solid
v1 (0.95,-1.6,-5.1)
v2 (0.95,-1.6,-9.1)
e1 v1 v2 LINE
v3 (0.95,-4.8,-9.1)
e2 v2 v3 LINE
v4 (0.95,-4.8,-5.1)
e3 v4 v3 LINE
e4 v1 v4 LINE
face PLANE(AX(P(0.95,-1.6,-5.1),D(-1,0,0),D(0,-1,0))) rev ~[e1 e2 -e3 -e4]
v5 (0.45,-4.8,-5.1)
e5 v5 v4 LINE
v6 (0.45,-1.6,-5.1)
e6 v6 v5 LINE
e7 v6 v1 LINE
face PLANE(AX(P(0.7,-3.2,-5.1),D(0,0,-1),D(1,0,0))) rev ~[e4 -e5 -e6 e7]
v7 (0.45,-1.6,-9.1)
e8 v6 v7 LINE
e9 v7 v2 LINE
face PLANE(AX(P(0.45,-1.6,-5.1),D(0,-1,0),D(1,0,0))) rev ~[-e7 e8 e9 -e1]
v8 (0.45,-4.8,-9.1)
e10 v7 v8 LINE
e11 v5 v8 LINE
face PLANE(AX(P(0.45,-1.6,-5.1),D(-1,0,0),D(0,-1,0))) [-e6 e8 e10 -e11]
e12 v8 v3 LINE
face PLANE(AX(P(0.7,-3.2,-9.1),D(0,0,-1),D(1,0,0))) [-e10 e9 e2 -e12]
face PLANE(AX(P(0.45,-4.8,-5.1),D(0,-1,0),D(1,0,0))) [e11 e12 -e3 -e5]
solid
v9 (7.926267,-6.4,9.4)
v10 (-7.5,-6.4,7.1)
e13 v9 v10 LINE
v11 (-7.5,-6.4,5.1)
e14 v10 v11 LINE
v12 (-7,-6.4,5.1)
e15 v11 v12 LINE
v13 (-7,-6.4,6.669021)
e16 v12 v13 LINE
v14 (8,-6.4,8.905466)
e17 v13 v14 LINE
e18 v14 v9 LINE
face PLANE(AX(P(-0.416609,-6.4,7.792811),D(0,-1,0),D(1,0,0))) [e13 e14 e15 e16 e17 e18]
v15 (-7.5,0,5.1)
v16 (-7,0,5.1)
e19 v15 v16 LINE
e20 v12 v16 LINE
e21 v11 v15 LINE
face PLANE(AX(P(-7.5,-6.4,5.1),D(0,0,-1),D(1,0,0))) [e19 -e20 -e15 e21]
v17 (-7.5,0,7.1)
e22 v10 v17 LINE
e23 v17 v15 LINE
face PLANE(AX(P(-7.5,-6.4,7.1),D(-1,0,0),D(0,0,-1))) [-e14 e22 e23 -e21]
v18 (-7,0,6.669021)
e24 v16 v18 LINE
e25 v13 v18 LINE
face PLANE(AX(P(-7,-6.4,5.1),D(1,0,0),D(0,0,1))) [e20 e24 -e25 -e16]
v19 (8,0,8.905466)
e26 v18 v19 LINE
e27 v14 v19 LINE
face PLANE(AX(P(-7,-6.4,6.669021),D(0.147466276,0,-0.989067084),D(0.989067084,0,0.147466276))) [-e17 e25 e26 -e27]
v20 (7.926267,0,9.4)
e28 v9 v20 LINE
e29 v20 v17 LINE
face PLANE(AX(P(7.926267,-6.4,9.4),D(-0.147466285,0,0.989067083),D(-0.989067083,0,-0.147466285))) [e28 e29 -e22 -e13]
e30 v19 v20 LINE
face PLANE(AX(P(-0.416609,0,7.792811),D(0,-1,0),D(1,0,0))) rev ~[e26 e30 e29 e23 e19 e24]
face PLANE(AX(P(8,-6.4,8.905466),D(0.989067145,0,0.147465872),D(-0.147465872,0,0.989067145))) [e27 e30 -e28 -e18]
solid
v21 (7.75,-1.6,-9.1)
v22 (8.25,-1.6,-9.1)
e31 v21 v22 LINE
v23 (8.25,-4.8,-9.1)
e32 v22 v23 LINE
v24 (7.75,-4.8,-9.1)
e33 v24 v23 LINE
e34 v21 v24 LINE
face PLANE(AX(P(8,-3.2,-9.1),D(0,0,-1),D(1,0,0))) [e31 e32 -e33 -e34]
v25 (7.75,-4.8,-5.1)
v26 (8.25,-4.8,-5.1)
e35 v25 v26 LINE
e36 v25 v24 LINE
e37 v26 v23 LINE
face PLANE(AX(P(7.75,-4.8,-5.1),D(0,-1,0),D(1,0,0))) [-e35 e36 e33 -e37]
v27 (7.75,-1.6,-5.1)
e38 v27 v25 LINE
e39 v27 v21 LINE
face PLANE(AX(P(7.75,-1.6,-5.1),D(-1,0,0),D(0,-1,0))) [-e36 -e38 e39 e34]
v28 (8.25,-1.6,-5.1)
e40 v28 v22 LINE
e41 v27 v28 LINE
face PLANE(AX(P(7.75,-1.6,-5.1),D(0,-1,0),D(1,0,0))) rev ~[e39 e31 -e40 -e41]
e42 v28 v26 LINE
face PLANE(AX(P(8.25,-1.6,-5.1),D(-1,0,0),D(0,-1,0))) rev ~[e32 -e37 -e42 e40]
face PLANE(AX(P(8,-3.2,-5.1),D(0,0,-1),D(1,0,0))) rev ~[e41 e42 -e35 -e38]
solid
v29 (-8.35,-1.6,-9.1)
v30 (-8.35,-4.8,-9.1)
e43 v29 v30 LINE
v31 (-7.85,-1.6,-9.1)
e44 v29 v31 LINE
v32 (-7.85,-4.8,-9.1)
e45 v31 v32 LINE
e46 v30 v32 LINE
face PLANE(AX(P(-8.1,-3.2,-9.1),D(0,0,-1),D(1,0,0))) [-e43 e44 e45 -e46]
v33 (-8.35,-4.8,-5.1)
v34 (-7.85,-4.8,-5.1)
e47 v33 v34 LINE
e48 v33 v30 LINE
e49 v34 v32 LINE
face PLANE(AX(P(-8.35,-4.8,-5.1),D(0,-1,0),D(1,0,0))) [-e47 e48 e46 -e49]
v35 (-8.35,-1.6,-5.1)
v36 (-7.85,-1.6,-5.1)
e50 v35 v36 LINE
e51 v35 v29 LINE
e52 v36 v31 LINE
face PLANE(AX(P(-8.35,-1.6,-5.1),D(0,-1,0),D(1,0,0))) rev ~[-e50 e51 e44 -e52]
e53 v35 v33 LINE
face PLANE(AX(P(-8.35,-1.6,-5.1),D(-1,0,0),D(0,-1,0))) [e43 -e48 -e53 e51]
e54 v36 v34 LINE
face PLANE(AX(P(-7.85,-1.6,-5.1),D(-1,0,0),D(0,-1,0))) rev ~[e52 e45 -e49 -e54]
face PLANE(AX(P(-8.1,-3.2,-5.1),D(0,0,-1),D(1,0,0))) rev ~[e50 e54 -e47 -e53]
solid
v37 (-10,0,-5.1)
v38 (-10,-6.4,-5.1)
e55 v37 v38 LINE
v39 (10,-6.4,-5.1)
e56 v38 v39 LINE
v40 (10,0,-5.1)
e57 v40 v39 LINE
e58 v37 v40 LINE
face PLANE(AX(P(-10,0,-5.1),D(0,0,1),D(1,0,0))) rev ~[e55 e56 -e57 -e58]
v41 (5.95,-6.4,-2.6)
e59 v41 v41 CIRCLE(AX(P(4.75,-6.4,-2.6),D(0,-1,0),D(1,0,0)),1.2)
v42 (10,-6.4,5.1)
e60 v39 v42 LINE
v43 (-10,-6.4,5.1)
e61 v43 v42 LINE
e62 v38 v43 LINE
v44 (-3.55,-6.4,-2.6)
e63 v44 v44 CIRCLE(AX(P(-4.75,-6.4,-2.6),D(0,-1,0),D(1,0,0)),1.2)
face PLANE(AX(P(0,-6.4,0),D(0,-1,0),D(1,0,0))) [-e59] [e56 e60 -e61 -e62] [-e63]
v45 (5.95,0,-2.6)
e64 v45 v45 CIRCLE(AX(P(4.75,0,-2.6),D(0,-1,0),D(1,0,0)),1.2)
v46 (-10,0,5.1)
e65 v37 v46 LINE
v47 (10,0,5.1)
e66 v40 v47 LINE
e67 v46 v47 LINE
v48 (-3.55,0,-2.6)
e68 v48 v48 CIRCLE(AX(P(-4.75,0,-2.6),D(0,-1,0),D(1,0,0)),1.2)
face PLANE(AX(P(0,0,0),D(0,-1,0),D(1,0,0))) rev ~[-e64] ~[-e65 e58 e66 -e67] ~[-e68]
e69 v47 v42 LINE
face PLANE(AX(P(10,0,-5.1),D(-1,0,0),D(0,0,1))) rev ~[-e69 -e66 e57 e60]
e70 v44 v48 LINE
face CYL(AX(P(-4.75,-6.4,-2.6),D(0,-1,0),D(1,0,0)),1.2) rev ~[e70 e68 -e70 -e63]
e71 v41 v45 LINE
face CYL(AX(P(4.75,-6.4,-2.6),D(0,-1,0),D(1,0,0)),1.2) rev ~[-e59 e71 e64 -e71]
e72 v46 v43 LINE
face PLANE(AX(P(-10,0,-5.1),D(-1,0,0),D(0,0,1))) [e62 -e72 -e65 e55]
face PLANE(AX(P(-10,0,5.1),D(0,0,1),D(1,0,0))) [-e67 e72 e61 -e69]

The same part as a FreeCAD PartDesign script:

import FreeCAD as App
import Part
import Sketcher
Q = App.Units.Quantity

doc = App.newDocument("Part")
body = doc.addObject("PartDesign::Body", "Body")

# Sketch on XZ plane
sketch1 = doc.addObject("Sketcher::SketchObject", "Sketch")
body.addObject(sketch1)
sketch1.AttachmentSupport = (doc.XZ_Plane, [""])
sketch1.MapMode = "FlatFace"
sketch1.addGeometry([
    Part.LineSegment(App.Vector(-10, 5, 0), App.Vector(-10, -5, 0)),
    Part.LineSegment(App.Vector(-10, -5, 0), App.Vector(10, -5, 0)),
    Part.LineSegment(App.Vector(10, -5, 0), App.Vector(10, 5, 0)),
    Part.LineSegment(App.Vector(10, 5, 0), App.Vector(-10, 5, 0)),
], False)
sketch1.addConstraint([
    Sketcher.Constraint("Coincident", 0, 2, 1, 1),
    Sketcher.Constraint("Coincident", 1, 2, 2, 1),
    Sketcher.Constraint("Coincident", 2, 2, 3, 1),
    Sketcher.Constraint("Coincident", 3, 2, 0, 1),
    Sketcher.Constraint("Vertical", 0),
    Sketcher.Constraint("Horizontal", 1),
    Sketcher.Constraint("Vertical", 2),
    Sketcher.Constraint("Horizontal", 3),
    Sketcher.Constraint("Symmetric", 0, 2, 2, 2, -1, 1),
    Sketcher.Constraint("DistanceX", 1, 1, 1, 2, Q("20 mm")),
    Sketcher.Constraint("DistanceY", 0, 2, 0, 1, Q("10.2 mm")),
])
pad1 = doc.addObject("PartDesign::Pad", "Pad")
body.addObject(pad1)
pad1.Profile = sketch1
pad1.Length = 6.4

# Sketch on XZ plane
sketch2 = doc.addObject("Sketcher::SketchObject", "Sketch001")
body.addObject(sketch2)
sketch2.AttachmentSupport = (doc.XZ_Plane, [""])
sketch2.MapMode = "FlatFace"
sketch2.AttachmentOffset = App.Placement(App.Vector(0, 0, 6.4), App.Rotation())
sketch2.addGeometry([
    Part.Circle(App.Vector(-4.8, -2.6, 0), App.Vector(0, 0, 1), 1.2),
    Part.Circle(App.Vector(4.8, -2.6, 0), App.Vector(0, 0, 1), 1.2),
], False)
sketch2.addConstraint([
    Sketcher.Constraint("Equal", 0, 1),
    Sketcher.Constraint("Symmetric", 0, 3, 1, 3, -2),
    Sketcher.Constraint("Diameter", 0, Q("2.4 mm")),
    Sketcher.Constraint("DistanceY", 0, 3, -1, 1, Q("2.6 mm")),
    Sketcher.Constraint("DistanceX", 0, 3, 1, 3, Q("9.5 mm")),
])
pocket1 = doc.addObject("PartDesign::Pocket", "Pocket")
body.addObject(pocket1)
pocket1.Profile = sketch2
pocket1.Length = 25
body2 = doc.addObject("PartDesign::Body", "Body001")

# Sketch on XZ plane
sketch3 = doc.addObject("Sketcher::SketchObject", "Sketch002")
body2.addObject(sketch3)
sketch3.AttachmentSupport = (doc.getObject("XZ_Plane001"), [""])
sketch3.MapMode = "FlatFace"
sketch3.AttachmentOffset = App.Placement(App.Vector(0, 0, 6.4), App.Rotation())
sketch3.addGeometry([
    Part.LineSegment(App.Vector(7.9, 9.4, 0), App.Vector(-7.5, 7.1, 0)),  # 0
    Part.LineSegment(App.Vector(-7.5, 7.1, 0), App.Vector(-7.5, 5.1, 0)),  # 1
    Part.LineSegment(App.Vector(-7.5, 5.1, 0), App.Vector(-7, 5.1, 0)),  # 2
    Part.LineSegment(App.Vector(-7, 5.1, 0), App.Vector(-7, 6.7, 0)),  # 3
    Part.LineSegment(App.Vector(-7, 6.7, 0), App.Vector(8, 8.9, 0)),  # 4
    Part.LineSegment(App.Vector(8, 8.9, 0), App.Vector(7.9, 9.4, 0)),  # 5
], False)
sketch3.addConstraint([
    Sketcher.Constraint("Coincident", 0, 2, 1, 1),
    Sketcher.Constraint("Coincident", 1, 2, 2, 1),
    Sketcher.Constraint("Coincident", 2, 2, 3, 1),
    Sketcher.Constraint("Coincident", 3, 2, 4, 1),
    Sketcher.Constraint("Coincident", 4, 2, 5, 1),
    Sketcher.Constraint("Coincident", 5, 2, 0, 1),
    Sketcher.Constraint("Vertical", 1),
    Sketcher.Constraint("Horizontal", 2),
    Sketcher.Constraint("Vertical", 3),
    Sketcher.Constraint("Parallel", 0, 4),
    Sketcher.Constraint("Perpendicular", 4, 5),
    Sketcher.Constraint("DistanceY", 1, 2, 1, 1, Q("2 mm")),
    Sketcher.Constraint("DistanceX", 2, 1, 2, 2, Q("0.5 mm")),
    Sketcher.Constraint("DistanceX", 2, 2, -1, 1, Q("7 mm")),
    Sketcher.Constraint("DistanceX", -1, 1, 4, 2, Q("8 mm")),
    Sketcher.Constraint("Distance", 5, Q("0.5 mm")),
    Sketcher.Constraint("DistanceY", -1, 1, 0, 2, Q("7.1 mm")),
    Sketcher.Constraint("DistanceY", -1, 1, 5, 2, Q("9.4 mm")),
])
pad2 = doc.addObject("PartDesign::Pad", "Pad001")
body2.addObject(pad2)
pad2.Profile = sketch3
pad2.Length = 6.4
pad2.Reversed = True
body3 = doc.addObject("PartDesign::Body", "Body002")
body3.AllowCompound = True

# Sketch on XY plane
sketch4 = doc.addObject("Sketcher::SketchObject", "Sketch003")
body3.addObject(sketch4)
sketch4.AttachmentSupport = (doc.getObject("XY_Plane002"), [""])
sketch4.MapMode = "FlatFace"
sketch4.AttachmentOffset = App.Placement(App.Vector(0, 0, -5.1), App.Rotation())
sketch4.addGeometry([
    Part.LineSegment(App.Vector(-8.35, -4.8, 0), App.Vector(-8.35, -1.6, 0)),  # 0
    Part.LineSegment(App.Vector(-8.35, -1.6, 0), App.Vector(-7.85, -1.6, 0)),  # 1
    Part.LineSegment(App.Vector(-7.85, -1.6, 0), App.Vector(-7.85, -4.8, 0)),  # 2
    Part.LineSegment(App.Vector(-7.85, -4.8, 0), App.Vector(-8.35, -4.8, 0)),  # 3
    Part.LineSegment(App.Vector(0.45, -4.8, 0), App.Vector(0.45, -1.6, 0)),  # 4
    Part.LineSegment(App.Vector(0.45, -1.6, 0), App.Vector(0.95, -1.6, 0)),  # 5
    Part.LineSegment(App.Vector(0.95, -1.6, 0), App.Vector(0.95, -4.8, 0)),  # 6
    Part.LineSegment(App.Vector(0.95, -4.8, 0), App.Vector(0.45, -4.8, 0)),  # 7
    Part.LineSegment(App.Vector(7.75, -4.8, 0), App.Vector(7.75, -1.6, 0)),  # 8
    Part.LineSegment(App.Vector(7.75, -1.6, 0), App.Vector(8.25, -1.6, 0)),  # 9
    Part.LineSegment(App.Vector(8.25, -1.6, 0), App.Vector(8.25, -4.8, 0)),  # 10
    Part.LineSegment(App.Vector(8.25, -4.8, 0), App.Vector(7.75, -4.8, 0)),  # 11
], False)
sketch4.addConstraint([
    Sketcher.Constraint("Coincident", 0, 2, 1, 1),
    Sketcher.Constraint("Coincident", 1, 2, 2, 1),
    Sketcher.Constraint("Coincident", 2, 2, 3, 1),
    Sketcher.Constraint("Coincident", 3, 2, 0, 1),
    Sketcher.Constraint("Coincident", 4, 2, 5, 1),
    Sketcher.Constraint("Coincident", 5, 2, 6, 1),
    Sketcher.Constraint("Coincident", 6, 2, 7, 1),
    Sketcher.Constraint("Coincident", 7, 2, 4, 1),
    Sketcher.Constraint("Coincident", 8, 2, 9, 1),
    Sketcher.Constraint("Coincident", 9, 2, 10, 1),
    Sketcher.Constraint("Coincident", 10, 2, 11, 1),
    Sketcher.Constraint("Coincident", 11, 2, 8, 1),
    Sketcher.Constraint("Vertical", 0),
    Sketcher.Constraint("Horizontal", 1),
    Sketcher.Constraint("Vertical", 2),
    Sketcher.Constraint("Horizontal", 3),
    Sketcher.Constraint("Vertical", 4),
    Sketcher.Constraint("Horizontal", 5),
    Sketcher.Constraint("Vertical", 6),
    Sketcher.Constraint("Horizontal", 7),
    Sketcher.Constraint("Vertical", 8),
    Sketcher.Constraint("Horizontal", 9),
    Sketcher.Constraint("Vertical", 10),
    Sketcher.Constraint("Horizontal", 11),
    Sketcher.Constraint("Horizontal", 1, 2, 4, 2),
    Sketcher.Constraint("Horizontal", 3, 2, 6, 2),
    Sketcher.Constraint("Horizontal", 5, 2, 8, 2),
    Sketcher.Constraint("Horizontal", 7, 2, 10, 2),
    Sketcher.Constraint("Equal", 3, 5),
    Sketcher.Constraint("Equal", 7, 9),
    Sketcher.Constraint("DistanceX", 1, 1, 1, 2, Q("0.5 mm")),
    Sketcher.Constraint("DistanceY", 0, 1, 0, 2, Q("3.2 mm")),
    Sketcher.Constraint("DistanceY", 0, 2, -1, 1, Q("1.6 mm")),
    Sketcher.Constraint("DistanceX", 1, 2, 4, 2, Q("8.3 mm")),
    Sketcher.Constraint("DistanceX", 5, 2, 8, 2, Q("6.8 mm")),
    Sketcher.Constraint("DistanceX", 0, 2, -1, 1, Q("8.35 mm")),
])
pad3 = doc.addObject("PartDesign::Pad", "Pad002")
body3.addObject(pad3)
pad3.Profile = sketch4
pad3.Length = 4
pad3.Reversed = True

doc.recompute()
